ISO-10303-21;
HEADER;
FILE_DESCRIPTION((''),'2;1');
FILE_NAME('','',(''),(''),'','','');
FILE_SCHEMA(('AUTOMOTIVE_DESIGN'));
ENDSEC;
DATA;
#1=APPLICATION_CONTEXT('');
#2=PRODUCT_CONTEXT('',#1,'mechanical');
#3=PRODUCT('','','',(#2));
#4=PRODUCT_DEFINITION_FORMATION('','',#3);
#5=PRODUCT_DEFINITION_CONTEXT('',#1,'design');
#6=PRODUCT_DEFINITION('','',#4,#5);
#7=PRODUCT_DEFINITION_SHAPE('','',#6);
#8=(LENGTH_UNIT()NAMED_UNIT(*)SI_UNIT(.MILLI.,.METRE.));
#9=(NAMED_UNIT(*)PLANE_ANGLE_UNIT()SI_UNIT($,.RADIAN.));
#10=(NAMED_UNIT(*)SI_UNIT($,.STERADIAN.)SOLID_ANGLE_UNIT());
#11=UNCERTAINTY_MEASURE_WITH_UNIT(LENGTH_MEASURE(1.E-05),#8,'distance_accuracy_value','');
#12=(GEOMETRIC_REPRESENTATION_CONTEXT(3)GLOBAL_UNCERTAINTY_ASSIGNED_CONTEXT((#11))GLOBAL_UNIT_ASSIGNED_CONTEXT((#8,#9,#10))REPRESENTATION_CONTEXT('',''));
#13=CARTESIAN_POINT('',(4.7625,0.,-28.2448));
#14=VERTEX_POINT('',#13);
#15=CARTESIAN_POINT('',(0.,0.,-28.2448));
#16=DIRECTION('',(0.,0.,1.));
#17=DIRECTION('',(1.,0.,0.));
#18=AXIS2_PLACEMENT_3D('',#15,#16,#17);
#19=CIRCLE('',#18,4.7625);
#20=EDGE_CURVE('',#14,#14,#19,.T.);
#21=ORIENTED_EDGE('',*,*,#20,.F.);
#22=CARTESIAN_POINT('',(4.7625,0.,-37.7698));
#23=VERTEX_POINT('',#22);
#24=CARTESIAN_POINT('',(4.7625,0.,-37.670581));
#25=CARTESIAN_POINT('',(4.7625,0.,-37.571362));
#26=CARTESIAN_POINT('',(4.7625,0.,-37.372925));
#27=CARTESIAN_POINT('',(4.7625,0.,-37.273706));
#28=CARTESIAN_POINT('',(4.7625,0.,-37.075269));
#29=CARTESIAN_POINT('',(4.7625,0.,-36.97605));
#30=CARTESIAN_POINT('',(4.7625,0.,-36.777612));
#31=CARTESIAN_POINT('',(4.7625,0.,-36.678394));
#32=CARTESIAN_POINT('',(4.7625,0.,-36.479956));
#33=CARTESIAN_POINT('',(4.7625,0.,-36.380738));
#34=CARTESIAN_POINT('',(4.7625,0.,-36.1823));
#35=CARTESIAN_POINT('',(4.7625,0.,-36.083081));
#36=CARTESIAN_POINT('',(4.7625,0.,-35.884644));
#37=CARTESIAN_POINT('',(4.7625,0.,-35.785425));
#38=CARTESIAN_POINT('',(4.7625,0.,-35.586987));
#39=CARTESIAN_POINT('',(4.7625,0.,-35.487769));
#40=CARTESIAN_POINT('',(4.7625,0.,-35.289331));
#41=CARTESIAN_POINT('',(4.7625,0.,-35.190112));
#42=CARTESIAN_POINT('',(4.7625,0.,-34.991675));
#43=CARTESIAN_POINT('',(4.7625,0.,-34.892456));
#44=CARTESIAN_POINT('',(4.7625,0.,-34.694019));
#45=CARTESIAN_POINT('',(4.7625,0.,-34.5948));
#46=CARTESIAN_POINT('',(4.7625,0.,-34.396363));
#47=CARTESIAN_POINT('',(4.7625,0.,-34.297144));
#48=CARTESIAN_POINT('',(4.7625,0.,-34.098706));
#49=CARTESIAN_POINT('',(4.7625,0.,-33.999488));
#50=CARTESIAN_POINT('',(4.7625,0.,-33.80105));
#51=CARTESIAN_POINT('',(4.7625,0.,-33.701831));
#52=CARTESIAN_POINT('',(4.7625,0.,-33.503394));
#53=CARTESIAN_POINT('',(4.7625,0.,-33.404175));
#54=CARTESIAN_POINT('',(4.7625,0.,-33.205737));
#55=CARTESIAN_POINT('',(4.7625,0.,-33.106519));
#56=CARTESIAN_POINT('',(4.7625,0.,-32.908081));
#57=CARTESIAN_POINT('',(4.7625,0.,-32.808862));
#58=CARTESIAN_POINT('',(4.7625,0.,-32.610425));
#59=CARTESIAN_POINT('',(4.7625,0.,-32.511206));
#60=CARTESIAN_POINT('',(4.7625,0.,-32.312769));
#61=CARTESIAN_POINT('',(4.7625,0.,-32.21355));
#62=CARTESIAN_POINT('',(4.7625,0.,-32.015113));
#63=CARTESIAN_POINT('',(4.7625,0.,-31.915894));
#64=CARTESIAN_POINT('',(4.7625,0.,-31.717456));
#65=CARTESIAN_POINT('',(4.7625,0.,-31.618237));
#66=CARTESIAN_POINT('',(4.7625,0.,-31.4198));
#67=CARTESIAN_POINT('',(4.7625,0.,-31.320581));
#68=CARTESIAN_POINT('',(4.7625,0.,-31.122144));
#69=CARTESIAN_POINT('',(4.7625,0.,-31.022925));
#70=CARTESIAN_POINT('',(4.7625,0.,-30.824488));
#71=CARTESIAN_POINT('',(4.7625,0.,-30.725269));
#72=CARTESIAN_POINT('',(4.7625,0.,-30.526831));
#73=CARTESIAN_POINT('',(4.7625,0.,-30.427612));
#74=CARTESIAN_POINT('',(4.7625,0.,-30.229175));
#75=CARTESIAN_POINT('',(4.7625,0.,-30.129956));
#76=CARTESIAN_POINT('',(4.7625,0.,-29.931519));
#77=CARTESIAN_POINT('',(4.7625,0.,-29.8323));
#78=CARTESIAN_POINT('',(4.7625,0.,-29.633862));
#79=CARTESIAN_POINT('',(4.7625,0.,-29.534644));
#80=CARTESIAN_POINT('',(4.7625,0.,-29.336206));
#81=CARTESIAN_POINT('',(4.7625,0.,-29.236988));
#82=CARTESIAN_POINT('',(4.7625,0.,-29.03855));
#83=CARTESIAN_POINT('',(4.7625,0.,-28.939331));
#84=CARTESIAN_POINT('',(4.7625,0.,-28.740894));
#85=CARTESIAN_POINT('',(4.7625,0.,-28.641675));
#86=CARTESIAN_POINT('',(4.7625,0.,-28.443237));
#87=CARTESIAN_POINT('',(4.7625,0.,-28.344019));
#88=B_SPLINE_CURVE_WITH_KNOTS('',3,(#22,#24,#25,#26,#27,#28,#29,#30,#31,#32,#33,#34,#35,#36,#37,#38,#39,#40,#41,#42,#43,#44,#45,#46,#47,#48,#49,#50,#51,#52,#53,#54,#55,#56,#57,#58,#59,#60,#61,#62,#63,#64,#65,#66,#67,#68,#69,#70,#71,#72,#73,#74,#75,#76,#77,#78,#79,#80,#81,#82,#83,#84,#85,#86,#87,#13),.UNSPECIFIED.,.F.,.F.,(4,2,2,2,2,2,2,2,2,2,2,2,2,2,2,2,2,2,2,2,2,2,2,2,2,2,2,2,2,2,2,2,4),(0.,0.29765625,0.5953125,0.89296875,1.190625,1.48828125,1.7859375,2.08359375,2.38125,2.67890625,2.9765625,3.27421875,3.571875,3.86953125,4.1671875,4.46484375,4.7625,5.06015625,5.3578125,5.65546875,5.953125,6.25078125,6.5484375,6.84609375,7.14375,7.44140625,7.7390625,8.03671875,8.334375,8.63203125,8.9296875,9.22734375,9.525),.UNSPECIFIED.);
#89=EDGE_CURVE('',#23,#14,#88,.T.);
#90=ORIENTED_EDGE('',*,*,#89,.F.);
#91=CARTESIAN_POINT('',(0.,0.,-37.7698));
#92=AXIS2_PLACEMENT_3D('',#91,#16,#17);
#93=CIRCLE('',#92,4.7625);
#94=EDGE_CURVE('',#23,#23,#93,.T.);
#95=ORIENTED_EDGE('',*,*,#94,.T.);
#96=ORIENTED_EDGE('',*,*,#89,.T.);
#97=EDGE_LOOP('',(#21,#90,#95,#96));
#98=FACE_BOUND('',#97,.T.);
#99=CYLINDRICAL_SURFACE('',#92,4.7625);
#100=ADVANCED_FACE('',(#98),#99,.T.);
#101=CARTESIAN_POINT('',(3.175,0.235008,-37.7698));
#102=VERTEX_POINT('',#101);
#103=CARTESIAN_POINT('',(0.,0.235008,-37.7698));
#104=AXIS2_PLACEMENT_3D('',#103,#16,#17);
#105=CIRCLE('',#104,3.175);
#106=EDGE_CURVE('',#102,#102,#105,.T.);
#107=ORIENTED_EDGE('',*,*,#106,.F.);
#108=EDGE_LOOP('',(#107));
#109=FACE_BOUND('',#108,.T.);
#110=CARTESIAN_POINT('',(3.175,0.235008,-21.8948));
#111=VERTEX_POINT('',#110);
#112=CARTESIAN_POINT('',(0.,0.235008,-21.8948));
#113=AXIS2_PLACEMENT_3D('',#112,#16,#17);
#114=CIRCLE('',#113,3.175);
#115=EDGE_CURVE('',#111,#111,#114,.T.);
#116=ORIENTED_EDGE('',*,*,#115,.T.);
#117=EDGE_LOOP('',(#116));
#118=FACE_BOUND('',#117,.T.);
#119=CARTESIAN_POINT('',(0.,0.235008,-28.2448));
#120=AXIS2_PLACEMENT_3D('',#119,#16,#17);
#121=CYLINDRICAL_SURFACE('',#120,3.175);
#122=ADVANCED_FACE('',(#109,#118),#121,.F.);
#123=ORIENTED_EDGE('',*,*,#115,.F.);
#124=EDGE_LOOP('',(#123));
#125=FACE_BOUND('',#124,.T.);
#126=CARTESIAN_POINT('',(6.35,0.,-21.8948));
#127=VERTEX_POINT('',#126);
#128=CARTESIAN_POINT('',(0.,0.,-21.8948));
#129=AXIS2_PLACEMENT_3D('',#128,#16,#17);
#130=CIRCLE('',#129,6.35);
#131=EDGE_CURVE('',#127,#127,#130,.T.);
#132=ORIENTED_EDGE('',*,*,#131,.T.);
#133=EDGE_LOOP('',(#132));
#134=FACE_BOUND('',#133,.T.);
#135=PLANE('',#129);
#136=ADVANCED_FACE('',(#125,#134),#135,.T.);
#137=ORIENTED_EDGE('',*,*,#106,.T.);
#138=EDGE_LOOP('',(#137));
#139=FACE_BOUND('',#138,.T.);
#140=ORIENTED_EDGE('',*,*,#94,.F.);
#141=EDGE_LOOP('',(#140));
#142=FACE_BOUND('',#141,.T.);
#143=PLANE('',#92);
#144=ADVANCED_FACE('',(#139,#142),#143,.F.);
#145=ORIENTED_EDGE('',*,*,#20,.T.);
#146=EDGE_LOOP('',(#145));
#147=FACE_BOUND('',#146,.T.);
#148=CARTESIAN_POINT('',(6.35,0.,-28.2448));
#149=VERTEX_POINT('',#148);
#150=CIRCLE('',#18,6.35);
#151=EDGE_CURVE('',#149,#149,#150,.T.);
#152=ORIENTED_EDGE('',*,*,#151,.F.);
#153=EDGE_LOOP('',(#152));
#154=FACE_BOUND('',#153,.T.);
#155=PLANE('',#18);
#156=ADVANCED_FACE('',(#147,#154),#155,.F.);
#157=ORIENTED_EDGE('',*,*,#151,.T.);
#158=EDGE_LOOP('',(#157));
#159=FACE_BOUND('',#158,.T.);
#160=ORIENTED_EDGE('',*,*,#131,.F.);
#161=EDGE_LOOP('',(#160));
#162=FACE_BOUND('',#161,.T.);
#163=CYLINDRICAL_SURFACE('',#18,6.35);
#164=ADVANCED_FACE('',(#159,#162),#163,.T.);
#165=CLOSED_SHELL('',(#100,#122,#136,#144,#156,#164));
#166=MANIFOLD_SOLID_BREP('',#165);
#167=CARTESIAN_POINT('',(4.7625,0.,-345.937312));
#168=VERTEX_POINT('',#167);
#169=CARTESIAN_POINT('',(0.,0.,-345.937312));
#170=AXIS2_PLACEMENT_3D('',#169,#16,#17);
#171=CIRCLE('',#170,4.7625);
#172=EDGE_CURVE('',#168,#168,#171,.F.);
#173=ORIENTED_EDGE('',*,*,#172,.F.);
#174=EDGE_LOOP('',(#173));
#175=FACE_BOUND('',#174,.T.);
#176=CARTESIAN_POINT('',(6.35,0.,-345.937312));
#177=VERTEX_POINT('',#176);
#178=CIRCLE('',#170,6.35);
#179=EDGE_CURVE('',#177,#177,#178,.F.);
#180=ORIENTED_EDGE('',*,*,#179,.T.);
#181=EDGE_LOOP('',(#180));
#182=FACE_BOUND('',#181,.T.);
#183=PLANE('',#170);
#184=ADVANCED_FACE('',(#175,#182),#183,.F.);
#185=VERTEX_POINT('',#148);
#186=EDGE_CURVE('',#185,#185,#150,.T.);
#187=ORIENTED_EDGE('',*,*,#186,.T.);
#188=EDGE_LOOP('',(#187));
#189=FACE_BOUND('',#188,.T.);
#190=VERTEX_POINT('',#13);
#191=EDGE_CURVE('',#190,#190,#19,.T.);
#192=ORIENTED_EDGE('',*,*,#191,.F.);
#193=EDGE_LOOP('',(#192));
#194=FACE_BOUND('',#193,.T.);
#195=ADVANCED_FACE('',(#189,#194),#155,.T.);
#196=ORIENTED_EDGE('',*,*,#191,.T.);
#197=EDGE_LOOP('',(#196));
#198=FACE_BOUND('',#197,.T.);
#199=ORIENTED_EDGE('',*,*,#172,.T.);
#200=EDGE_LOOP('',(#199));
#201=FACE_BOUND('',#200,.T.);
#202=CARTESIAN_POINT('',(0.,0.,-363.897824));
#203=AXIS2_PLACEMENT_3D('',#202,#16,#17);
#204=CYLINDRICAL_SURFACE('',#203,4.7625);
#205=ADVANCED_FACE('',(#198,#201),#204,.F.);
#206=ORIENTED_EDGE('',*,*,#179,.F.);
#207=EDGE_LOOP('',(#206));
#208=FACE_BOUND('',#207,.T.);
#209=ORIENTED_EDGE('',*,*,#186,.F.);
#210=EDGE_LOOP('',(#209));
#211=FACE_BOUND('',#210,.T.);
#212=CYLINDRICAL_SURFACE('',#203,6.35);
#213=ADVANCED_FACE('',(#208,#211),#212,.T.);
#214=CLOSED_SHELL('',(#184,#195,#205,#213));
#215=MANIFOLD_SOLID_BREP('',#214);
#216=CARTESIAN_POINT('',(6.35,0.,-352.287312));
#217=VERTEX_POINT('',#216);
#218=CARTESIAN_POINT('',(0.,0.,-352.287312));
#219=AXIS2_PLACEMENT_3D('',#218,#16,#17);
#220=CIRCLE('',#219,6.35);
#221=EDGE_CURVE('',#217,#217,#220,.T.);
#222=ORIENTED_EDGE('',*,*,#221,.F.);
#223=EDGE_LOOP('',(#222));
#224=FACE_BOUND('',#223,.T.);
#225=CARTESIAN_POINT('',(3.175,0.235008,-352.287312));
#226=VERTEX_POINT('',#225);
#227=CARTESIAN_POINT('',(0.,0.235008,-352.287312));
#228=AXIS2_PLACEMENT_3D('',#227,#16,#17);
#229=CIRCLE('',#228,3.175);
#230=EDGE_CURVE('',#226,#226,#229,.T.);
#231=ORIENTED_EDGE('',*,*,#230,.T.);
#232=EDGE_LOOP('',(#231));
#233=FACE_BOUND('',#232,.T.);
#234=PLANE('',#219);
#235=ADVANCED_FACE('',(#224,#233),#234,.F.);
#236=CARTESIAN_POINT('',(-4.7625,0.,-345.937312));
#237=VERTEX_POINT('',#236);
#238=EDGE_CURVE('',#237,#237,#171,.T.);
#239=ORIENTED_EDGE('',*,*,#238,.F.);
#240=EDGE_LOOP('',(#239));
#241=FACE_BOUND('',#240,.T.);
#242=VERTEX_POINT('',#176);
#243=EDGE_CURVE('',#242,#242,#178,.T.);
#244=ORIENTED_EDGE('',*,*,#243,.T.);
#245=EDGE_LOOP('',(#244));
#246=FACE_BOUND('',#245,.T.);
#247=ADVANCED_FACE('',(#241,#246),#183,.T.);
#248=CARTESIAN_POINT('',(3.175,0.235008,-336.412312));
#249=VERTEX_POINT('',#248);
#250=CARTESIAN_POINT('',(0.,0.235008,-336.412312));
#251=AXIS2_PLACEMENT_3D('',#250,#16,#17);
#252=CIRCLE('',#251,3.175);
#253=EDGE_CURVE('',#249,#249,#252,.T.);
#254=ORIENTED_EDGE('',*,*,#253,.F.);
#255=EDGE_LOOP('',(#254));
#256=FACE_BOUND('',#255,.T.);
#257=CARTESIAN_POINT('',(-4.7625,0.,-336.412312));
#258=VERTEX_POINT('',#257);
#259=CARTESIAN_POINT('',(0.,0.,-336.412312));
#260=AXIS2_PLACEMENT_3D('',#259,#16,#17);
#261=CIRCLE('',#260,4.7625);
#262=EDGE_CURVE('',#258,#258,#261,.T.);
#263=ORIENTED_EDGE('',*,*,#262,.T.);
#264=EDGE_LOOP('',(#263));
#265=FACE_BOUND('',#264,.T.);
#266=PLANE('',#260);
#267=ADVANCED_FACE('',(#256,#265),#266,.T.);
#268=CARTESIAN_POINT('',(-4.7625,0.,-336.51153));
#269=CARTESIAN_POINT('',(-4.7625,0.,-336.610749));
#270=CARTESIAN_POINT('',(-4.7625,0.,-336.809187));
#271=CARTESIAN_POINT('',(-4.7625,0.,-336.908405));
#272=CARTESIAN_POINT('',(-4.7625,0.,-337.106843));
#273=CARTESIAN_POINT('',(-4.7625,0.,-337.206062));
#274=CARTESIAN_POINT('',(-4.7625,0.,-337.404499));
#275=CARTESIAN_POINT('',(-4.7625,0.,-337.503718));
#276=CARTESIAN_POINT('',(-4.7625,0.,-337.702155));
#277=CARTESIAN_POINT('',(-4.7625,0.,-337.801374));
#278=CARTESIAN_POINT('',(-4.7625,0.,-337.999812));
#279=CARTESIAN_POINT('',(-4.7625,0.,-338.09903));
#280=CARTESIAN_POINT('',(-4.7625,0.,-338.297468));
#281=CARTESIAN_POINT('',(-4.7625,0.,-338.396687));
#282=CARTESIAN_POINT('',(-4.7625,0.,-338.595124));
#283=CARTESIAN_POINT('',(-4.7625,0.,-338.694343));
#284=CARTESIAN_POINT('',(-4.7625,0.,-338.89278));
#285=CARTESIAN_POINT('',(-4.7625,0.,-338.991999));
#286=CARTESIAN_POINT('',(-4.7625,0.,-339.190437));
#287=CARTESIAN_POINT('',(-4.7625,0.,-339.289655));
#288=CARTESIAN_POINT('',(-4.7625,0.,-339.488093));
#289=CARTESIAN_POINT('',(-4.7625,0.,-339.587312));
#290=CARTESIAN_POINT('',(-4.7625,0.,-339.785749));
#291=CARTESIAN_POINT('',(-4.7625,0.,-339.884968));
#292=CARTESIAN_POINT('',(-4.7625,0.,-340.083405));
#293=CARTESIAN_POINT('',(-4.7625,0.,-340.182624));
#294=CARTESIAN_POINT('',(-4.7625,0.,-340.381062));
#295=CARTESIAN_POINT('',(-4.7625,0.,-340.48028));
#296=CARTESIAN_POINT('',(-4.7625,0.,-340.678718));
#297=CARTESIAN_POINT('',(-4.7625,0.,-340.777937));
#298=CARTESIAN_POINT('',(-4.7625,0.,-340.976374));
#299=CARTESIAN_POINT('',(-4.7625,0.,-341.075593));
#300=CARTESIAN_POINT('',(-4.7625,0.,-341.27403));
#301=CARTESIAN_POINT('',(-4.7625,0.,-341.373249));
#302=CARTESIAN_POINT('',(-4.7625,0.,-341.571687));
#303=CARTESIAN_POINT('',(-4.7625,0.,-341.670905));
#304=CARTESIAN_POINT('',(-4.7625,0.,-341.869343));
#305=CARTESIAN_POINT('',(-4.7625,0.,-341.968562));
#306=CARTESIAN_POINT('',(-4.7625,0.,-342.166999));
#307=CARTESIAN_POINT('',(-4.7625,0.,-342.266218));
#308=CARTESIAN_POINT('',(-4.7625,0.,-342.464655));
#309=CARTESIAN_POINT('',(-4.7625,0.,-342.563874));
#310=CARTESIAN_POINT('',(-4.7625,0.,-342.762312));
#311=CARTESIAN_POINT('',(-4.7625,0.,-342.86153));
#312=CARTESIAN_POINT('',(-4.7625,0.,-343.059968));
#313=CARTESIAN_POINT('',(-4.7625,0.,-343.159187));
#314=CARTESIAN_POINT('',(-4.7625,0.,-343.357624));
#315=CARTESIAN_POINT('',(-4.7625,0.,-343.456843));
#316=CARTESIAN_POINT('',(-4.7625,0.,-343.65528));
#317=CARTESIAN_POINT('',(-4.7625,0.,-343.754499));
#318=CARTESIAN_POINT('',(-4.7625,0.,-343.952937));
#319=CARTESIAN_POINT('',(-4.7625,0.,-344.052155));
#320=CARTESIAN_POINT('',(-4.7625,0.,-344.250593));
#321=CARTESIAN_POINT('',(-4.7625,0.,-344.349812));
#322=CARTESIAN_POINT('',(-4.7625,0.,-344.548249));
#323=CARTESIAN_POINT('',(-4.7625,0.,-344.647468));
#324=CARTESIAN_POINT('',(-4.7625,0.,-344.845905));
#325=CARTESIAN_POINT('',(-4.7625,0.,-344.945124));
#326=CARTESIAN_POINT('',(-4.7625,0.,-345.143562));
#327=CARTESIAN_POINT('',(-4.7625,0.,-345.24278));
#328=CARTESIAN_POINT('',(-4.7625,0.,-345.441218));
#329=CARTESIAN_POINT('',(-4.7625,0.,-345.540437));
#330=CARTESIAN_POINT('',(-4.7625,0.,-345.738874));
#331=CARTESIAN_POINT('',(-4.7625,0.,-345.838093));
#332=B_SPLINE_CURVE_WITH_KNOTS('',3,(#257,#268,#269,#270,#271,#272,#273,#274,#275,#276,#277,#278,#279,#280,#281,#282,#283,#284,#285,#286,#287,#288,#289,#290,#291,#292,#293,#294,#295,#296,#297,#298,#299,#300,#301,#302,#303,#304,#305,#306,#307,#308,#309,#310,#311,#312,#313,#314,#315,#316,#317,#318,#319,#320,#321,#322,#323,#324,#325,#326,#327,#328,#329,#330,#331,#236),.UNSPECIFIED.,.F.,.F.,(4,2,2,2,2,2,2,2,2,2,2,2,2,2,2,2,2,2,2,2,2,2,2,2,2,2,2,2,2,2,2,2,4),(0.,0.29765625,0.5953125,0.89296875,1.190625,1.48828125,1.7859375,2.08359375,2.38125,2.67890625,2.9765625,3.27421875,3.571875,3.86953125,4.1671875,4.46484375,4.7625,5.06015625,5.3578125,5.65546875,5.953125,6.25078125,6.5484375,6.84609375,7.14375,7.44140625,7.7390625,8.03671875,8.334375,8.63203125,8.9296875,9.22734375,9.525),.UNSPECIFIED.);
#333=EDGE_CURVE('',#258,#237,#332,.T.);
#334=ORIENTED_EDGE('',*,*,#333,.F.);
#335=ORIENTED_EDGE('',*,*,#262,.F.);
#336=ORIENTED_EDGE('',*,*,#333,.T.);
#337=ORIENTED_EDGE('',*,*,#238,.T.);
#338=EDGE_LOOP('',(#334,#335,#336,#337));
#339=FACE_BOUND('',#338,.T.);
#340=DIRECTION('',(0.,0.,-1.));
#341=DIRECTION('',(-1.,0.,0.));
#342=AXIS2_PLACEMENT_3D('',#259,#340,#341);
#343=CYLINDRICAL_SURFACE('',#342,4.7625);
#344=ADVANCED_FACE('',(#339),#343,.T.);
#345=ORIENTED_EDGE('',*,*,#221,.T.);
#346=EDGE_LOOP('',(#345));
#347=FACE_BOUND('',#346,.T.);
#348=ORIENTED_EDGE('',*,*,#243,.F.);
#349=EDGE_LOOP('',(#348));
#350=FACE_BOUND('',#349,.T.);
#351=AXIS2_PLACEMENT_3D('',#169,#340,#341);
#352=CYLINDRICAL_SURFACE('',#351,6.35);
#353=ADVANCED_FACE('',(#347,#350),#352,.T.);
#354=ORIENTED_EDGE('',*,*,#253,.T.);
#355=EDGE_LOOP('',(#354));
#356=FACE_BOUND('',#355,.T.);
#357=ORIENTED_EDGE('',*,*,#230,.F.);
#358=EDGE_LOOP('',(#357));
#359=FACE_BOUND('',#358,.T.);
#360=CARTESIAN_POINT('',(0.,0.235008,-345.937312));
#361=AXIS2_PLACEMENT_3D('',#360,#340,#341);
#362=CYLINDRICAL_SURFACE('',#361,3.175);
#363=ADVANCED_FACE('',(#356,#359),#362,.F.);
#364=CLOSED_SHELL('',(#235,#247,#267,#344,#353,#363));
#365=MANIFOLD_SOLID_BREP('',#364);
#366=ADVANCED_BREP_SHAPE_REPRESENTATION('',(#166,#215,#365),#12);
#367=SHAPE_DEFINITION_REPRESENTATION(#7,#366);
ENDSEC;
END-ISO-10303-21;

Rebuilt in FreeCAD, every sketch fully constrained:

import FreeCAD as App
import Part
import Sketcher

V = App.Vector
Q = App.Units.Quantity

doc = App.newDocument("Part")
body = doc.addObject("PartDesign::Body", "Body")

# Sketch on XY plane
sketch1 = body.newObject("Sketcher::SketchObject", "Sketch")
sketch1.AttachmentSupport = (doc.getObject("XY_Plane"), [""])
sketch1.MapMode = "FlatFace"
sketch1.AttachmentOffset = App.Placement(V(0, 0, -0.862 * 25.4), App.Rotation())
sketch1.addGeometry([
    Part.Circle(V(0, 0, 0), V(0, 0, 1), 6.35),
    Part.Circle(V(0, 0.235008, 0), V(0, 0, 1), 3.175),
], False)
sketch1.addConstraint([
    Sketcher.Constraint("Coincident", 0, 3, -1, 1),
    Sketcher.Constraint("PointOnObject", 1, 3, -2),
    Sketcher.Constraint("Diameter", 0, Q("0.5 in")),
    Sketcher.Constraint("Diameter", 1, Q("0.25 in")),
    Sketcher.Constraint("DistanceY", -1, 1, 1, 3, Q("0.235008 mm")),
])
pad1 = body.newObject("PartDesign::Pad", "Pad")
pad1.Profile = sketch1
pad1.Length = Q("0.25 in")
pad1.Reversed = True

# Sketch on XY plane
sketch2 = body.newObject("Sketcher::SketchObject", "Sketch001")
sketch2.AttachmentSupport = (doc.getObject("XY_Plane"), [""])
sketch2.MapMode = "FlatFace"
sketch2.AttachmentOffset = App.Placement(V(0, 0, -1.112 * 25.4), App.Rotation())
sketch2.addGeometry([
    Part.Circle(V(0, 0, 0), V(0, 0, 1), 4.7625),
    Part.Circle(V(0, 0.235008, 0), V(0, 0, 1), 3.175),
], False)
sketch2.addConstraint([
    Sketcher.Constraint("Coincident", 0, 3, -1, 1),
    Sketcher.Constraint("PointOnObject", 1, 3, -2),
    Sketcher.Constraint("Diameter", 1, Q("0.25 in")),
    Sketcher.Constraint("Diameter", 0, Q("0.375 in")),
    Sketcher.Constraint("DistanceY", -1, 1, 1, 3, Q("0.235008 mm")),
])
pad2 = body.newObject("PartDesign::Pad", "Pad001")
pad2.Profile = sketch2
pad2.Length = Q("0.375 in")
pad2.Reversed = True
body2 = doc.addObject("PartDesign::Body", "Body001")

# Sketch on XY plane
sketch3 = body2.newObject("Sketcher::SketchObject", "Sketch002")
sketch3.AttachmentSupport = (doc.getObject("XY_Plane001"), [""])
sketch3.MapMode = "FlatFace"
sketch3.AttachmentOffset = App.Placement(V(0, 0, -352.287312), App.Rotation())
sketch3.addGeometry([
    Part.Circle(V(0, 0, 0), V(0, 0, 1), 6.35),
    Part.Circle(V(0, 0.235008, 0), V(0, 0, 1), 3.175),
], False)
sketch3.addConstraint([
    Sketcher.Constraint("Coincident", 0, 3, -1, 1),
    Sketcher.Constraint("PointOnObject", 1, 3, -2),
    Sketcher.Constraint("Diameter", 0, Q("0.5 in")),
    Sketcher.Constraint("Diameter", 1, Q("0.25 in")),
    Sketcher.Constraint("DistanceY", -1, 1, 1, 3, Q("0.235008 mm")),
])
pad3 = body2.newObject("PartDesign::Pad", "Pad002")
pad3.Profile = sketch3
pad3.Length = Q("0.25 in")

# Sketch on XY plane
sketch4 = body2.newObject("Sketcher::SketchObject", "Sketch003")
sketch4.AttachmentSupport = (doc.getObject("XY_Plane001"), [""])
sketch4.MapMode = "FlatFace"
sketch4.AttachmentOffset = App.Placement(V(0, 0, -336.412312), App.Rotation())
sketch4.addGeometry([
    Part.Circle(V(0, 0, 0), V(0, 0, 1), 4.7625),
    Part.Circle(V(0, 0.235008, 0), V(0, 0, 1), 3.175),
], False)
sketch4.addConstraint([
    Sketcher.Constraint("Coincident", 0, 3, -1, 1),
    Sketcher.Constraint("PointOnObject", 1, 3, -2),
    Sketcher.Constraint("Diameter", 1, Q("0.25 in")),
    Sketcher.Constraint("Diameter", 0, Q("0.375 in")),
    Sketcher.Constraint("DistanceY", -1, 1, 1, 3, Q("0.235008 mm")),
])
pad4 = body2.newObject("PartDesign::Pad", "Pad003")
pad4.Profile = sketch4
pad4.Length = Q("0.375 in")
pad4.Reversed = True
body3 = doc.addObject("PartDesign::Body", "Body002")

# Sketch on XY plane
sketch5 = body3.newObject("Sketcher::SketchObject", "Sketch004")
sketch5.AttachmentSupport = (doc.getObject("XY_Plane002"), [""])
sketch5.MapMode = "FlatFace"
sketch5.AttachmentOffset = App.Placement(V(0, 0, -1.112 * 25.4), App.Rotation())
sketch5.addGeometry([
    Part.Circle(V(0, 0, 0), V(0, 0, 1), 6.35),
    Part.Circle(V(0, 0, 0), V(0, 0, 1), 4.7625),
], False)
sketch5.addConstraint([
    Sketcher.Constraint("Coincident", 0, 3, -1, 1),
    Sketcher.Constraint("Coincident", 1, 3, -1, 1),
    Sketcher.Constraint("Diameter", 0, Q("0.5 in")),
    Sketcher.Constraint("Diameter", 1, Q("0.375 in")),
])
pad5 = body3.newObject("PartDesign::Pad", "Pad004")
pad5.Profile = sketch5
pad5.Length = 317.692512
pad5.Reversed = True

doc.recompute()
